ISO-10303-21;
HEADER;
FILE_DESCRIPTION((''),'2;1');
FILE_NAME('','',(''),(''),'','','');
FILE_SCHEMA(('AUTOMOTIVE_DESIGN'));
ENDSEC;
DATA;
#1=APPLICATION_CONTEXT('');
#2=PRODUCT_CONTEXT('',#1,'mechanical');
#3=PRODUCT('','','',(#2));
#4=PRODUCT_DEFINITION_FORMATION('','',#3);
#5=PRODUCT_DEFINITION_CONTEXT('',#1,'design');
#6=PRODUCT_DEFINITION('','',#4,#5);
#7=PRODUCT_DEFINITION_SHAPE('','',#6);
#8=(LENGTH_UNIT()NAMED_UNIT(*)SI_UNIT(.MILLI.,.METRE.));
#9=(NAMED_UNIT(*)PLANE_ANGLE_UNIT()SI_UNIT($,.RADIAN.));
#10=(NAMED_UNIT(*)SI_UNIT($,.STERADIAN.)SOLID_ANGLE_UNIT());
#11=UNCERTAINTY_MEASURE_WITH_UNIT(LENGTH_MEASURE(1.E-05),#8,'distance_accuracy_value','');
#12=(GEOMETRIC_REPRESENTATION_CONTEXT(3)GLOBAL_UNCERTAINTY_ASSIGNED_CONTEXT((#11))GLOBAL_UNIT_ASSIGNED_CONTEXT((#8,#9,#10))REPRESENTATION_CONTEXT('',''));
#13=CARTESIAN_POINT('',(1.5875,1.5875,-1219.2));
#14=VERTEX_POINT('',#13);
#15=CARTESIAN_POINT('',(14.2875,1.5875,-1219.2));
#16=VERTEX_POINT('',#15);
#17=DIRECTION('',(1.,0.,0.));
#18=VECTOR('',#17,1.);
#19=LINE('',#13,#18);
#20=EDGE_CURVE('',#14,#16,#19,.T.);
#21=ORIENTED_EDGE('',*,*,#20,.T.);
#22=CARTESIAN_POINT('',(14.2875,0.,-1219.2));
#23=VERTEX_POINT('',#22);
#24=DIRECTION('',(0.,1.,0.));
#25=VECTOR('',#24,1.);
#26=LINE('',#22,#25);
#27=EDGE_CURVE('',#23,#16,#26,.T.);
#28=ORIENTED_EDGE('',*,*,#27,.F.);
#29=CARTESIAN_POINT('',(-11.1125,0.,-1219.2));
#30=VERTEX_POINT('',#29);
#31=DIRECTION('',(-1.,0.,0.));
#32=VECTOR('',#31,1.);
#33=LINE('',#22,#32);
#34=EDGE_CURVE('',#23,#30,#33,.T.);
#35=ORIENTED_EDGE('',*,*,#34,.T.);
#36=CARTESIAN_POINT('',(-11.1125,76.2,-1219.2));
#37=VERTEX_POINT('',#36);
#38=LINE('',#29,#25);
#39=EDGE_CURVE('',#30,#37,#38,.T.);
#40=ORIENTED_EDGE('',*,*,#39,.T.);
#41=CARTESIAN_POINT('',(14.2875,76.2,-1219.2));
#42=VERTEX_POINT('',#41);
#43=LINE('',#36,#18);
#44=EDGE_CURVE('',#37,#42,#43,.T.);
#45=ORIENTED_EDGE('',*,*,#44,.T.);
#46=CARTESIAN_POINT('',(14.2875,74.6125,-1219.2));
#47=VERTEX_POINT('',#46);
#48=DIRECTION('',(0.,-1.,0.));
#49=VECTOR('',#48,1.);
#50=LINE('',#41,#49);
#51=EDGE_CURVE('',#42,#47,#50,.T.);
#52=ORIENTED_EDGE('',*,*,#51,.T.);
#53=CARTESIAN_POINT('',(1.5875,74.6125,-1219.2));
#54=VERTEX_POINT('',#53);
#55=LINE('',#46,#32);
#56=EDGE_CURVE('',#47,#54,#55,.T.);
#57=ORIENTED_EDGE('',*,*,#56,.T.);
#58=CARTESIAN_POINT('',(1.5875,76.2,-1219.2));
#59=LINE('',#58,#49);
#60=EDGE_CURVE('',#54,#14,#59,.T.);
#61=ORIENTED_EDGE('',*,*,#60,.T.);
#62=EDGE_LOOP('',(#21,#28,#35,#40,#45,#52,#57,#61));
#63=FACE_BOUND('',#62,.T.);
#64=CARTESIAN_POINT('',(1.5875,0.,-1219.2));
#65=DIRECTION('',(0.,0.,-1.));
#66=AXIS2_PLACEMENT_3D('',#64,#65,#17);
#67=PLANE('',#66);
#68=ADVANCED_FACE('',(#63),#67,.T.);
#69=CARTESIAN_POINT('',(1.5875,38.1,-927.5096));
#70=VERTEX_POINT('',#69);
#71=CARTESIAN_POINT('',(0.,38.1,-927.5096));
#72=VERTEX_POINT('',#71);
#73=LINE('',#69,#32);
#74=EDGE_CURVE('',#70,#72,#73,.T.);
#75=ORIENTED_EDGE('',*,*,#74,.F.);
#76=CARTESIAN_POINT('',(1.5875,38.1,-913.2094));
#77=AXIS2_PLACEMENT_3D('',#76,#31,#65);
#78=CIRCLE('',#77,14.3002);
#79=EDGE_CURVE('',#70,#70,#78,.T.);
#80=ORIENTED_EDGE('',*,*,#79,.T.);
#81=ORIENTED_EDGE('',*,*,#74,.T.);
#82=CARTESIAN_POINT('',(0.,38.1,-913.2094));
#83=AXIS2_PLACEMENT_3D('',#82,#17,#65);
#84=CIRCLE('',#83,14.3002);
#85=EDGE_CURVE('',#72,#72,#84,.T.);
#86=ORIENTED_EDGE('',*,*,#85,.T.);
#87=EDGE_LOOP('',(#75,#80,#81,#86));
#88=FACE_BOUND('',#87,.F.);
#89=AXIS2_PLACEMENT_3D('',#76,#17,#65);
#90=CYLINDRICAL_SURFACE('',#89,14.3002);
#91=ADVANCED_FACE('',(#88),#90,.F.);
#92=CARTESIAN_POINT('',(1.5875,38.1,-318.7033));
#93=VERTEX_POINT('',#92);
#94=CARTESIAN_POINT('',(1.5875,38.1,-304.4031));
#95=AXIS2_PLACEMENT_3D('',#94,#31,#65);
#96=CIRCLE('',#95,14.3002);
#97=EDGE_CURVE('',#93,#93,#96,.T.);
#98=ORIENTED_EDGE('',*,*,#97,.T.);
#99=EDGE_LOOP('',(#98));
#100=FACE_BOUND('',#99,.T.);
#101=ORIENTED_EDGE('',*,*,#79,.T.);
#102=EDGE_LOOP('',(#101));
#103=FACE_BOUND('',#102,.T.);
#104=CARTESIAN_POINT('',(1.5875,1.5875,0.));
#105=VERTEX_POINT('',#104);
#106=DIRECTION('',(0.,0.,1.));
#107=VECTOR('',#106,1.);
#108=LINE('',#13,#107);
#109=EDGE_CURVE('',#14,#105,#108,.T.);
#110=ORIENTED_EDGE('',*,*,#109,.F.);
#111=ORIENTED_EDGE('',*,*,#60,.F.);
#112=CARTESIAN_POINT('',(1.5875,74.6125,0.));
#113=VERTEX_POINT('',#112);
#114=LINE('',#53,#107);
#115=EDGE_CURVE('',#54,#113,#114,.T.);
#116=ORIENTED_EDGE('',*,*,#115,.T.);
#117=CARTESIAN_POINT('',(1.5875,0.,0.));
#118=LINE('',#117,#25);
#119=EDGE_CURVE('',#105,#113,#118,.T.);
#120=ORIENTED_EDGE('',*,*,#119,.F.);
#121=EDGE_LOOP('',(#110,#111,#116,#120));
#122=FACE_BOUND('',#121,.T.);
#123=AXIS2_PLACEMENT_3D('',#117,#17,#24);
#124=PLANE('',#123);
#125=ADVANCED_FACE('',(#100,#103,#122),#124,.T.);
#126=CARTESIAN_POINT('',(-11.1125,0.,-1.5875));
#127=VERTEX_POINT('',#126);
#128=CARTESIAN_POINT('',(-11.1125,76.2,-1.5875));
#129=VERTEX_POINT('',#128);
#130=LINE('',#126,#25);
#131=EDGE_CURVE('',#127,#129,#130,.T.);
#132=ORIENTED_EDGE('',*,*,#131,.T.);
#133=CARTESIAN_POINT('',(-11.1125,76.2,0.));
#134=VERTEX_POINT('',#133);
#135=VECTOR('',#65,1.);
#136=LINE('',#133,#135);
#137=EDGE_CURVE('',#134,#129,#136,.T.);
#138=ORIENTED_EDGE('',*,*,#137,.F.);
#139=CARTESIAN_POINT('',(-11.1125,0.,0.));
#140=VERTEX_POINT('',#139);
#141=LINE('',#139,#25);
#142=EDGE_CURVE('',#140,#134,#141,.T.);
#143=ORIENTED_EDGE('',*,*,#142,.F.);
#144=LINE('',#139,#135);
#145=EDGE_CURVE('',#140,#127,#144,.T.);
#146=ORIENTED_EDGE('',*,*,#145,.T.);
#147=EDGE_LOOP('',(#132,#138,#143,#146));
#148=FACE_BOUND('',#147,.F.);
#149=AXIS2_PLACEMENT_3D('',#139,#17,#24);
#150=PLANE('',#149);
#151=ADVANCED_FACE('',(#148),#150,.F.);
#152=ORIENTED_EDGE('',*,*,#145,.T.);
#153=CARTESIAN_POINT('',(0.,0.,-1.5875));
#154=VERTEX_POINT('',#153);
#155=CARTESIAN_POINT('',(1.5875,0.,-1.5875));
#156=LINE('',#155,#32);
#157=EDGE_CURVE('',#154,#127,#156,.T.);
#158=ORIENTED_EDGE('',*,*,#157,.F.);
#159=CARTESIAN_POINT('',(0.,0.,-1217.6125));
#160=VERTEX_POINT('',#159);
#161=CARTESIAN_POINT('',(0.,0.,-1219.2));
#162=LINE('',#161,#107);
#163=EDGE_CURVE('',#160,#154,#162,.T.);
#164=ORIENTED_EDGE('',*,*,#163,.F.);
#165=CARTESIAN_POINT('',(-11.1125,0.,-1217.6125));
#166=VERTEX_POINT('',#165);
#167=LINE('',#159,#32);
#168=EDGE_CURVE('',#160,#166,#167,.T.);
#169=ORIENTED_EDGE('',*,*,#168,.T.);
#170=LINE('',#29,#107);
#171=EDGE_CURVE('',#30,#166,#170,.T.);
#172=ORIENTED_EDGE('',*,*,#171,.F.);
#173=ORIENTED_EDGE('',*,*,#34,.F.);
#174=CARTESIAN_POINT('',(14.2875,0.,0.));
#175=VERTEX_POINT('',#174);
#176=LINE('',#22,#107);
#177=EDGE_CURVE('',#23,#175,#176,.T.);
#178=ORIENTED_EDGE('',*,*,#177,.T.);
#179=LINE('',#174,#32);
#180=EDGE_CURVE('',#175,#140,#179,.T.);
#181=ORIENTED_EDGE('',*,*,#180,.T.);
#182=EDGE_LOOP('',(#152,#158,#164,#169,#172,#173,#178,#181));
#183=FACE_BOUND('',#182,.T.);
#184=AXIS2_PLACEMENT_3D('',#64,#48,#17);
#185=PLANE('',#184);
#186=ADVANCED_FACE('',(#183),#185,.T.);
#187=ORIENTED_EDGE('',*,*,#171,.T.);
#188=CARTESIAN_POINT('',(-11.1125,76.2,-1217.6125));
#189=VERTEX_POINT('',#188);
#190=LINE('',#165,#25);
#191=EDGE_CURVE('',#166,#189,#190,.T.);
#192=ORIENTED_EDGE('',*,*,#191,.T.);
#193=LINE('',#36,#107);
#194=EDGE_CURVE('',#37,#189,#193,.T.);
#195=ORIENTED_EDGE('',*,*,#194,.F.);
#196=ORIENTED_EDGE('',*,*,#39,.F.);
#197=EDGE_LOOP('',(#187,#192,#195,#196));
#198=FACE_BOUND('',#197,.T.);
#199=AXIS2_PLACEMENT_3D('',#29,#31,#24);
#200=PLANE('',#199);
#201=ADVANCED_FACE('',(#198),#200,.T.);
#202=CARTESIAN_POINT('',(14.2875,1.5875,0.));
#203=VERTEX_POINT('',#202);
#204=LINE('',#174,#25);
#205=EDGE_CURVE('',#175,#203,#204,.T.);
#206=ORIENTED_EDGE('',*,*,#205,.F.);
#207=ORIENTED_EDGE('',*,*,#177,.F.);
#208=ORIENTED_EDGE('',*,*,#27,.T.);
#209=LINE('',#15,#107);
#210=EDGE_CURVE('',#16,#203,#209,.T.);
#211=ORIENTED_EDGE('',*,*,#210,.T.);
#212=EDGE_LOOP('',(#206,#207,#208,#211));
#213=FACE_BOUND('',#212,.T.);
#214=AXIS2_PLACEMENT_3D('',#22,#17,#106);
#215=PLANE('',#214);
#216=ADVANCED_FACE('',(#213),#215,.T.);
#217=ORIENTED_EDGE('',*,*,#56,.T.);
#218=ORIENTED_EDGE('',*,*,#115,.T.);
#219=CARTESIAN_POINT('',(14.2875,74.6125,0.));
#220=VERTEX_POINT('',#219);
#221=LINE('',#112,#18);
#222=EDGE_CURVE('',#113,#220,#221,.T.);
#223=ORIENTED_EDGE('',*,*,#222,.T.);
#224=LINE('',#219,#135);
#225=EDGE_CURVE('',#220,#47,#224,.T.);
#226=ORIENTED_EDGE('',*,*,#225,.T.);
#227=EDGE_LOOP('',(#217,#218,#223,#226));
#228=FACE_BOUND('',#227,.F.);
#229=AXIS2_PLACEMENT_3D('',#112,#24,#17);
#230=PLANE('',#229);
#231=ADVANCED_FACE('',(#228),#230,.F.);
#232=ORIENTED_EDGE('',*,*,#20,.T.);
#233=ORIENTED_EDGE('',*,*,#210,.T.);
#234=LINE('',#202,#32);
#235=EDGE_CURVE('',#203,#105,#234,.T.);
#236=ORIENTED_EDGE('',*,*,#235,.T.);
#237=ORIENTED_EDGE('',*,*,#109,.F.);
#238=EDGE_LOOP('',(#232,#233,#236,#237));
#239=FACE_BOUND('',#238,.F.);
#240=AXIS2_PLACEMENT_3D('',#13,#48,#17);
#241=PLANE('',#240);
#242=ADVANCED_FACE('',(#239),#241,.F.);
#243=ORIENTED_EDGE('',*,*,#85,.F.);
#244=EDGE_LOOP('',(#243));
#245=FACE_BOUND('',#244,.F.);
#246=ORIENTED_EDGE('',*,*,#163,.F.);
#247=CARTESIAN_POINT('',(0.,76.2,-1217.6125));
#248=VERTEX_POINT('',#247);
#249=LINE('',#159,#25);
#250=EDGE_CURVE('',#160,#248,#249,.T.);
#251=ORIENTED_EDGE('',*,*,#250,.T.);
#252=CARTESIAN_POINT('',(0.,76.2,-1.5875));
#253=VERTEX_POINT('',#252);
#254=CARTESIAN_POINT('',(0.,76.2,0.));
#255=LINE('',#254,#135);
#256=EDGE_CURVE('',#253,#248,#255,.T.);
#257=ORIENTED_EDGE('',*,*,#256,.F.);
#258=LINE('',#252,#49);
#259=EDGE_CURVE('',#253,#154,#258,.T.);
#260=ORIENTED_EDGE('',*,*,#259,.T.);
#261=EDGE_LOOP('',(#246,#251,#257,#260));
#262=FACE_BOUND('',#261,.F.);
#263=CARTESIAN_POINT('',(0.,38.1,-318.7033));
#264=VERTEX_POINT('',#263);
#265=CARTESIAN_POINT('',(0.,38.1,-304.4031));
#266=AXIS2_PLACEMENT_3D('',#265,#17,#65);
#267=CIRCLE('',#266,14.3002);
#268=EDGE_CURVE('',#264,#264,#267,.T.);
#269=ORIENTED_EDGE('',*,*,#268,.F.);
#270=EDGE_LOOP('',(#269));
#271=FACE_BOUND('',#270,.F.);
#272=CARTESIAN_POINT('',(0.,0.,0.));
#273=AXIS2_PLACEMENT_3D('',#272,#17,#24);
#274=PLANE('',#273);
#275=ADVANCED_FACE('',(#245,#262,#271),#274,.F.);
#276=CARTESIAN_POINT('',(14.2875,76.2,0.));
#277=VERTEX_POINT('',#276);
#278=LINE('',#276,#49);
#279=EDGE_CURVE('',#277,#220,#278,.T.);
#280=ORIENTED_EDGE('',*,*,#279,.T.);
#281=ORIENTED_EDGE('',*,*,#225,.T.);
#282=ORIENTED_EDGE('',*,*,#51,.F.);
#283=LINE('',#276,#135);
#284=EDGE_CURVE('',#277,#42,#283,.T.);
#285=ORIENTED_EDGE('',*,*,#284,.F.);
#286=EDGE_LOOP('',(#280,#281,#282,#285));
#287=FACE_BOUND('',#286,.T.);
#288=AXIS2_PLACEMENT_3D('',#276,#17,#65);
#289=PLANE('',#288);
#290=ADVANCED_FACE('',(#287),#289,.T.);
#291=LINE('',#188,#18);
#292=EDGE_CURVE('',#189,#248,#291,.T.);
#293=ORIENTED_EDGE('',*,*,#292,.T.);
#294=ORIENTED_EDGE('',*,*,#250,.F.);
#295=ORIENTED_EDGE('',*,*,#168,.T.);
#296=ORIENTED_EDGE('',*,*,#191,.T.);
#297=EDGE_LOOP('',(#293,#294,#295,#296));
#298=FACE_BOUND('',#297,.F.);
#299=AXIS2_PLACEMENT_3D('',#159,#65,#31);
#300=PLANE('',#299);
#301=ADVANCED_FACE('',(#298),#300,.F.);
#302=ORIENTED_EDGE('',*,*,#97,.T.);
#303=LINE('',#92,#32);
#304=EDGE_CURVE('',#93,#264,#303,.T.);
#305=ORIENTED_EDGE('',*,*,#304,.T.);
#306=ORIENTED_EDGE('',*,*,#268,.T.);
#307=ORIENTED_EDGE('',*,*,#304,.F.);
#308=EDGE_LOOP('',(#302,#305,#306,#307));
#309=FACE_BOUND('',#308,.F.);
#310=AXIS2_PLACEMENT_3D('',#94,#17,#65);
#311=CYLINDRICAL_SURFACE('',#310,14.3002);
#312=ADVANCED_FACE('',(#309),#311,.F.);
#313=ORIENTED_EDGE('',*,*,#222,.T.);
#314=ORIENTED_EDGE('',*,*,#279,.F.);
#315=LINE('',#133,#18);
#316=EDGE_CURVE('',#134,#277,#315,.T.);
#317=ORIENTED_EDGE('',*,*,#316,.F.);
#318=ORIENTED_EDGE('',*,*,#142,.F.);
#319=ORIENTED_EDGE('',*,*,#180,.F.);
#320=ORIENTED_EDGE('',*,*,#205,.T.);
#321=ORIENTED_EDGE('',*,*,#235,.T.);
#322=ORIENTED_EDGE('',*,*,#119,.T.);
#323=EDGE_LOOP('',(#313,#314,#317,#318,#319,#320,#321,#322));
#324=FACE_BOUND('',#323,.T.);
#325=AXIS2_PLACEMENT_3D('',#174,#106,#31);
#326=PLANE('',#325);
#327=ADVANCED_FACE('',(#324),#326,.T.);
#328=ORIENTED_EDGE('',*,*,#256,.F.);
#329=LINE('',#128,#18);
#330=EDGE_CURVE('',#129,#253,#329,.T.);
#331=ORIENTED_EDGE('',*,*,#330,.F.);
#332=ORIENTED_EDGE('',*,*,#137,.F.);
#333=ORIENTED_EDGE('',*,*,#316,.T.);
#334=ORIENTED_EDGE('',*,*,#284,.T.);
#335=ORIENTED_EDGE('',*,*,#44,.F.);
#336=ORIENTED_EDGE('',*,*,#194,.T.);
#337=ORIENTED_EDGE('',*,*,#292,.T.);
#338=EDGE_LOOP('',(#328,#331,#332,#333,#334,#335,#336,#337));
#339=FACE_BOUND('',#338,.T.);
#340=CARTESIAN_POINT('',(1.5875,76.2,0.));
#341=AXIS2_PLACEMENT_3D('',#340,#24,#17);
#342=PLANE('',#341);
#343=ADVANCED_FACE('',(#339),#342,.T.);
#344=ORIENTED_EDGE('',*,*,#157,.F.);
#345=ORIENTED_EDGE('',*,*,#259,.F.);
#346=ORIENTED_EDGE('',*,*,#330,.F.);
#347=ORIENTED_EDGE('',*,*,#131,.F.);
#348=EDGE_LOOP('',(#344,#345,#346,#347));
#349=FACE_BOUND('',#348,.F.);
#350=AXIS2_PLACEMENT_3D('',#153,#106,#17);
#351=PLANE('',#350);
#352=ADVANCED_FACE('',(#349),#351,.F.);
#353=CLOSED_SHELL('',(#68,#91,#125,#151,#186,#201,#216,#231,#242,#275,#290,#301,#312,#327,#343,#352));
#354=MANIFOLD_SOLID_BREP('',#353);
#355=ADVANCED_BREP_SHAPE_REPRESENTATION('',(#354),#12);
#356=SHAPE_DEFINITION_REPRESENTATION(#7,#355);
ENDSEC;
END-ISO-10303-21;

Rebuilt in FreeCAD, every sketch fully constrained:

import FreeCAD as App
import Part
import Sketcher
from FreeCAD import Vector
Q = App.Units.Quantity

doc = App.newDocument("Part")
body = doc.addObject("PartDesign::Body", "Body")

sketch1 = doc.addObject("Sketcher::SketchObject", "Sketch")
body.addObject(sketch1)
sketch1.AttachmentSupport = (doc.YZ_Plane, [""])
sketch1.MapMode = "FlatFace"
sketch1.addGeometry(Part.LineSegment(Vector(76, 0, 0), Vector(0, 0, 0)), False)
sketch1.addGeometry(Part.LineSegment(Vector(0, 0, 0), Vector(0, -1219, 0)), False)
sketch1.addGeometry(Part.LineSegment(Vector(0, -1219, 0), Vector(76, -1219, 0)), False)
sketch1.addGeometry(Part.LineSegment(Vector(76, -1219, 0), Vector(76, 0, 0)), False)
sketch1.addConstraint(Sketcher.Constraint("Coincident", 0, 2, 1, 1))
sketch1.addConstraint(Sketcher.Constraint("Coincident", 1, 2, 2, 1))
sketch1.addConstraint(Sketcher.Constraint("Coincident", 2, 2, 3, 1))
sketch1.addConstraint(Sketcher.Constraint("Coincident", 3, 2, 0, 1))
sketch1.addConstraint(Sketcher.Constraint("Horizontal", 0))
sketch1.addConstraint(Sketcher.Constraint("Vertical", 1))
sketch1.addConstraint(Sketcher.Constraint("Horizontal", 2))
sketch1.addConstraint(Sketcher.Constraint("Vertical", 3))
sketch1.addConstraint(Sketcher.Constraint("Coincident", 0, 2, -1, 1))
sketch1.addConstraint(Sketcher.Constraint("DistanceX", 0, 2, 0, 1, Q("3 in")))
sketch1.addConstraint(Sketcher.Constraint("DistanceY", 1, 2, 1, 1, Q("48 in")))
pad1 = doc.addObject("PartDesign::Pad", "Pad")
body.addObject(pad1)
pad1.Profile = sketch1
pad1.Length = Q("0.0625 in")

sketch2 = doc.addObject("Sketcher::SketchObject", "Sketch001")
body.addObject(sketch2)
sketch2.AttachmentSupport = (doc.XY_Plane, [""])
sketch2.MapMode = "FlatFace"
sketch2.addGeometry(Part.LineSegment(Vector(0, 0, 0), Vector(0, 76, 0)), False)
sketch2.addGeometry(Part.LineSegment(Vector(0, 76, 0), Vector(-11, 76, 0)), False)
sketch2.addGeometry(Part.LineSegment(Vector(-11, 76, 0), Vector(-11, 0, 0)), False)
sketch2.addGeometry(Part.LineSegment(Vector(-11, 0, 0), Vector(0, 0, 0)), False)
sketch2.addConstraint(Sketcher.Constraint("Coincident", 0, 2, 1, 1))
sketch2.addConstraint(Sketcher.Constraint("Coincident", 1, 2, 2, 1))
sketch2.addConstraint(Sketcher.Constraint("Coincident", 2, 2, 3, 1))
sketch2.addConstraint(Sketcher.Constraint("Coincident", 3, 2, 0, 1))
sketch2.addConstraint(Sketcher.Constraint("Vertical", 0))
sketch2.addConstraint(Sketcher.Constraint("Horizontal", 1))
sketch2.addConstraint(Sketcher.Constraint("Vertical", 2))
sketch2.addConstraint(Sketcher.Constraint("Horizontal", 3))
sketch2.addConstraint(Sketcher.Constraint("Coincident", 3, 2, -1, 1))
sketch2.addConstraint(Sketcher.Constraint("DistanceY", 0, 1, 0, 2, Q("3 in")))
sketch2.addConstraint(Sketcher.Constraint("DistanceX", 1, 2, 1, 1, Q("0.4375 in")))
pad2 = doc.addObject("PartDesign::Pad", "Pad001")
body.addObject(pad2)
pad2.Profile = sketch2
pad2.Length = Q("0.0625 in")
pad2.Reversed = True

sketch3 = doc.addObject("Sketcher::SketchObject", "Sketch002")
body.addObject(sketch3)
sketch3.AttachmentSupport = (doc.XY_Plane, [""])
sketch3.MapMode = "FlatFace"
sketch3.AttachmentOffset = App.Placement(Vector(0, 0, -48 * 25.4), App.Rotation())
sketch3.addGeometry(Part.LineSegment(Vector(0, 76, 0), Vector(0, 0, 0)), False)
sketch3.addGeometry(Part.LineSegment(Vector(0, 0, 0), Vector(-11, 0, 0)), False)
sketch3.addGeometry(Part.LineSegment(Vector(-11, 0, 0), Vector(-11, 76, 0)), False)
sketch3.addGeometry(Part.LineSegment(Vector(-11, 76, 0), Vector(0, 76, 0)), False)
sketch3.addConstraint(Sketcher.Constraint("Coincident", 0, 2, 1, 1))
sketch3.addConstraint(Sketcher.Constraint("Coincident", 1, 2, 2, 1))
sketch3.addConstraint(Sketcher.Constraint("Coincident", 2, 2, 3, 1))
sketch3.addConstraint(Sketcher.Constraint("Coincident", 3, 2, 0, 1))
sketch3.addConstraint(Sketcher.Constraint("Vertical", 0))
sketch3.addConstraint(Sketcher.Constraint("Horizontal", 1))
sketch3.addConstraint(Sketcher.Constraint("Vertical", 2))
sketch3.addConstraint(Sketcher.Constraint("Horizontal", 3))
sketch3.addConstraint(Sketcher.Constraint("Coincident", 0, 2, -1, 1))
sketch3.addConstraint(Sketcher.Constraint("DistanceY", 0, 2, 0, 1, Q("3 in")))
sketch3.addConstraint(Sketcher.Constraint("DistanceX", 1, 2, 1, 1, Q("0.4375 in")))
pad3 = doc.addObject("PartDesign::Pad", "Pad002")
body.addObject(pad3)
pad3.Profile = sketch3
pad3.Length = Q("0.0625 in")

sketch4 = doc.addObject("Sketcher::SketchObject", "Sketch003")
body.addObject(sketch4)
sketch4.AttachmentSupport = (doc.XZ_Plane, [""])
sketch4.MapMode = "FlatFace"
sketch4.AttachmentOffset = App.Placement(Vector(0, 0, -3 * 25.4), App.Rotation())
sketch4.addGeometry(Part.LineSegment(Vector(14, -1219, 0), Vector(2, -1219, 0)), False)
sketch4.addGeometry(Part.LineSegment(Vector(2, -1219, 0), Vector(2, 0, 0)), False)
sketch4.addGeometry(Part.LineSegment(Vector(2, 0, 0), Vector(14, 0, 0)), False)
sketch4.addGeometry(Part.LineSegment(Vector(14, 0, 0), Vector(14, -1219, 0)), False)
sketch4.addConstraint(Sketcher.Constraint("Coincident", 0, 2, 1, 1))
sketch4.addConstraint(Sketcher.Constraint("Coincident", 1, 2, 2, 1))
sketch4.addConstraint(Sketcher.Constraint("Coincident", 2, 2, 3, 1))
sketch4.addConstraint(Sketcher.Constraint("Coincident", 3, 2, 0, 1))
sketch4.addConstraint(Sketcher.Constraint("Horizontal", 0))
sketch4.addConstraint(Sketcher.Constraint("Vertical", 1))
sketch4.addConstraint(Sketcher.Constraint("Horizontal", 2))
sketch4.addConstraint(Sketcher.Constraint("Vertical", 3))
sketch4.addConstraint(Sketcher.Constraint("PointOnObject", 1, 2, -1))
sketch4.addConstraint(Sketcher.Constraint("DistanceX", 0, 2, 0, 1, Q("0.5 in")))
sketch4.addConstraint(Sketcher.Constraint("DistanceY", 1, 1, 1, 2, Q("48 in")))
sketch4.addConstraint(Sketcher.Constraint("DistanceX", -1, 1, 0, 2, Q("0.0625 in")))
pad4 = doc.addObject("PartDesign::Pad", "Pad003")
body.addObject(pad4)
pad4.Profile = sketch4
pad4.Length = Q("0.0625 in")

sketch5 = doc.addObject("Sketcher::SketchObject", "Sketch004")
body.addObject(sketch5)
sketch5.AttachmentSupport = (doc.XZ_Plane, [""])
sketch5.MapMode = "FlatFace"
sketch5.addGeometry(Part.LineSegment(Vector(2, -1219, 0), Vector(14, -1219, 0)), False)
sketch5.addGeometry(Part.LineSegment(Vector(14, -1219, 0), Vector(14, 0, 0)), False)
sketch5.addGeometry(Part.LineSegment(Vector(14, 0, 0), Vector(2, 0, 0)), False)
sketch5.addGeometry(Part.LineSegment(Vector(2, 0, 0), Vector(2, -1219, 0)), False)
sketch5.addConstraint(Sketcher.Constraint("Coincident", 0, 2, 1, 1))
sketch5.addConstraint(Sketcher.Constraint("Coincident", 1, 2, 2, 1))
sketch5.addConstraint(Sketcher.Constraint("Coincident", 2, 2, 3, 1))
sketch5.addConstraint(Sketcher.Constraint("Coincident", 3, 2, 0, 1))
sketch5.addConstraint(Sketcher.Constraint("Horizontal", 0))
sketch5.addConstraint(Sketcher.Constraint("Vertical", 1))
sketch5.addConstraint(Sketcher.Constraint("Horizontal", 2))
sketch5.addConstraint(Sketcher.Constraint("Vertical", 3))
sketch5.addConstraint(Sketcher.Constraint("PointOnObject", 1, 2, -1))
sketch5.addConstraint(Sketcher.Constraint("DistanceY", 1, 1, 1, 2, Q("48 in")))
sketch5.addConstraint(Sketcher.Constraint("DistanceX", 0, 1, 0, 2, Q("0.5 in")))
sketch5.addConstraint(Sketcher.Constraint("DistanceX", -1, 1, 0, 2, Q("0.5625 in")))
pad5 = doc.addObject("PartDesign::Pad", "Pad004")
body.addObject(pad5)
pad5.Profile = sketch5
pad5.Length = Q("0.0625 in")
pad5.Reversed = True

sketch6 = doc.addObject("Sketcher::SketchObject", "Sketch005")
body.addObject(sketch6)
sketch6.AttachmentSupport = (doc.YZ_Plane, [""])
sketch6.MapMode = "FlatFace"
sketch6.AttachmentOffset = App.Placement(Vector(0, 0, 0.0625 * 25.4), App.Rotation())
sketch6.addGeometry(Part.Circle(Vector(38, -304, 0), Vector(0, 0, 1), 14), False)
sketch6.addGeometry(Part.Circle(Vector(38, -913, 0), Vector(0, 0, 1), 14), False)
sketch6.addConstraint(Sketcher.Constraint("Equal", 0, 1))
sketch6.addConstraint(Sketcher.Constraint("Vertical", 0, 3, 1, 3))
sketch6.addConstraint(Sketcher.Constraint("Diameter", 0, Q("1.126 in")))
sketch6.addConstraint(Sketcher.Constraint("DistanceX", -1, 1, 0, 3, Q("1.5 in")))
sketch6.addConstraint(Sketcher.Constraint("DistanceY", 0, 3, -1, 1, Q("11.9843701 in")))
sketch6.addConstraint(Sketcher.Constraint("DistanceY", 1, 3, -1, 1, Q("35.953126 in")))
pocket1 = doc.addObject("PartDesign::Pocket", "Pocket")
body.addObject(pocket1)
pocket1.Profile = sketch6
pocket1.Length = Q("1 in")

doc.recompute()
